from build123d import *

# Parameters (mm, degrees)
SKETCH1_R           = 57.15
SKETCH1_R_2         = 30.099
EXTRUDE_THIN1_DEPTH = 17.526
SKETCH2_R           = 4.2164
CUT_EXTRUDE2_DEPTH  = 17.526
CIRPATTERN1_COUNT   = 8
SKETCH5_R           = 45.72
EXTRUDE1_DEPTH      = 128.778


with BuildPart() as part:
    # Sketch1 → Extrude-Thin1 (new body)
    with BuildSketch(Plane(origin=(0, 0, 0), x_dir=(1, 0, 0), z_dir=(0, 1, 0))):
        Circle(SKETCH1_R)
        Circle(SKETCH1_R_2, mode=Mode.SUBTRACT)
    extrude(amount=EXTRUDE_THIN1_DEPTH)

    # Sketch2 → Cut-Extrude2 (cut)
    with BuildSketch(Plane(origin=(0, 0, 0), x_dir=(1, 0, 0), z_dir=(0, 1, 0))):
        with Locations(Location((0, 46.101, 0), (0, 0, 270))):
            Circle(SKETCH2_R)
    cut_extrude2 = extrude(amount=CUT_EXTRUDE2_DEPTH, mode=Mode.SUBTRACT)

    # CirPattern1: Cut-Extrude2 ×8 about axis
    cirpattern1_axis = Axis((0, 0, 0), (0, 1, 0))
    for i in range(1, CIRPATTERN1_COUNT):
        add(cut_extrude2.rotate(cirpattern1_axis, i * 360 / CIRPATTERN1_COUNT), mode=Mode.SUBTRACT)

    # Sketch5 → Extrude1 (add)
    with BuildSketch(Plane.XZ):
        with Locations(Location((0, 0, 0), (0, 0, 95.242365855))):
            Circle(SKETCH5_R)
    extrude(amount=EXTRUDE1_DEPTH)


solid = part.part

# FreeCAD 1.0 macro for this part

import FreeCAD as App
import Part
import Sketcher

V = App.Vector
Q = App.Units.Quantity

doc = App.newDocument("Part")
params = doc.addObject("Spreadsheet::Sheet", "Params")
for row, (alias, value) in enumerate([
    ("sketch1_diameter", "4.5 in"),
    ("sketch1_diameter2", "2.37 in"),
    ("pad1_length", "0.69 in"),
    ("sketch2_diameter", "0.332 in"),
    ("pocket1_length", "0.69 in"),
    ("sketch3_diameter", "3.6 in"),
    ("pad2_length", "5.07 in"),
], start=1):
    params.set(f"A{row}", alias)
    params.set(f"B{row}", "=" + value)
    params.setAlias(f"B{row}", alias)

body = doc.addObject("PartDesign::Body", "Body")

sketch1 = body.newObject("Sketcher::SketchObject", "Sketch")
sketch1.AttachmentSupport = (doc.getObject("XZ_Plane"), [""])
sketch1.MapMode = "FlatFace"
sketch1.addGeometry([
    Part.Circle(V(0, 0, 0), V(0, 0, 1), 57.15),
    Part.Circle(V(0, 0, 0), V(0, 0, 1), 30.099),
], False)
sketch1.addConstraint([
    Sketcher.Constraint("Coincident", 0, 3, -1, 1),
    Sketcher.Constraint("Coincident", 1, 3, -1, 1),
    Sketcher.Constraint("Diameter", 0, Q("4.5 in")),
    Sketcher.Constraint("Diameter", 1, Q("2.37 in")),
])
sketch1.setExpression("Constraints[2]", "Params.sketch1_diameter")
sketch1.setExpression("Constraints[3]", "Params.sketch1_diameter2")
pad1 = body.newObject("PartDesign::Pad", "Pad")
pad1.Profile = sketch1
pad1.setExpression("Length", "Params.pad1_length")
pad1.Reversed = True

sketch2 = body.newObject("Sketcher::SketchObject", "Sketch001")
sketch2.AttachmentSupport = (doc.getObject("XZ_Plane"), [""])
sketch2.MapMode = "FlatFace"
sketch2.addGeometry(Part.Circle(V(0, -46.101, 0), V(0, 0, 1), 4.2164), False)
sketch2.addConstraint([
    Sketcher.Constraint("PointOnObject", 0, 3, -2),
    Sketcher.Constraint("Diameter", 0, Q("0.332 in")),
    Sketcher.Constraint("DistanceY", 0, 3, -1, 1, Q("1.815 in")),
])
sketch2.setExpression("Constraints[1]", "Params.sketch2_diameter")
pocket1 = body.newObject("PartDesign::Pocket", "Pocket")
pocket1.Profile = sketch2
pocket1.setExpression("Length", "Params.pocket1_length")
doc.recompute()

polarpattern = body.newObject("PartDesign::PolarPattern", "PolarPattern")
polarpattern.Originals = [pocket1]
polarpattern.Axis = (doc.getObject("Y_Axis"), [""])
polarpattern.Angle = 360
polarpattern.Occurrences = 8
body.Tip = polarpattern

sketch3 = body.newObject("Sketcher::SketchObject", "Sketch002")
sketch3.AttachmentSupport = (doc.getObject("XZ_Plane"), [""])
sketch3.MapMode = "FlatFace"
sketch3.addGeometry(Part.Circle(V(0, 0, 0), V(0, 0, 1), 45.72), False)
sketch3.addConstraint([
    Sketcher.Constraint("Coincident", 0, 3, -1, 1),
    Sketcher.Constraint("Diameter", 0, Q("3.6 in")),
])
sketch3.setExpression("Constraints[1]", "Params.sketch3_diameter")
pad2 = body.newObject("PartDesign::Pad", "Pad001")
pad2.Profile = sketch3
pad2.setExpression("Length", "Params.pad2_length")

doc.recompute()
